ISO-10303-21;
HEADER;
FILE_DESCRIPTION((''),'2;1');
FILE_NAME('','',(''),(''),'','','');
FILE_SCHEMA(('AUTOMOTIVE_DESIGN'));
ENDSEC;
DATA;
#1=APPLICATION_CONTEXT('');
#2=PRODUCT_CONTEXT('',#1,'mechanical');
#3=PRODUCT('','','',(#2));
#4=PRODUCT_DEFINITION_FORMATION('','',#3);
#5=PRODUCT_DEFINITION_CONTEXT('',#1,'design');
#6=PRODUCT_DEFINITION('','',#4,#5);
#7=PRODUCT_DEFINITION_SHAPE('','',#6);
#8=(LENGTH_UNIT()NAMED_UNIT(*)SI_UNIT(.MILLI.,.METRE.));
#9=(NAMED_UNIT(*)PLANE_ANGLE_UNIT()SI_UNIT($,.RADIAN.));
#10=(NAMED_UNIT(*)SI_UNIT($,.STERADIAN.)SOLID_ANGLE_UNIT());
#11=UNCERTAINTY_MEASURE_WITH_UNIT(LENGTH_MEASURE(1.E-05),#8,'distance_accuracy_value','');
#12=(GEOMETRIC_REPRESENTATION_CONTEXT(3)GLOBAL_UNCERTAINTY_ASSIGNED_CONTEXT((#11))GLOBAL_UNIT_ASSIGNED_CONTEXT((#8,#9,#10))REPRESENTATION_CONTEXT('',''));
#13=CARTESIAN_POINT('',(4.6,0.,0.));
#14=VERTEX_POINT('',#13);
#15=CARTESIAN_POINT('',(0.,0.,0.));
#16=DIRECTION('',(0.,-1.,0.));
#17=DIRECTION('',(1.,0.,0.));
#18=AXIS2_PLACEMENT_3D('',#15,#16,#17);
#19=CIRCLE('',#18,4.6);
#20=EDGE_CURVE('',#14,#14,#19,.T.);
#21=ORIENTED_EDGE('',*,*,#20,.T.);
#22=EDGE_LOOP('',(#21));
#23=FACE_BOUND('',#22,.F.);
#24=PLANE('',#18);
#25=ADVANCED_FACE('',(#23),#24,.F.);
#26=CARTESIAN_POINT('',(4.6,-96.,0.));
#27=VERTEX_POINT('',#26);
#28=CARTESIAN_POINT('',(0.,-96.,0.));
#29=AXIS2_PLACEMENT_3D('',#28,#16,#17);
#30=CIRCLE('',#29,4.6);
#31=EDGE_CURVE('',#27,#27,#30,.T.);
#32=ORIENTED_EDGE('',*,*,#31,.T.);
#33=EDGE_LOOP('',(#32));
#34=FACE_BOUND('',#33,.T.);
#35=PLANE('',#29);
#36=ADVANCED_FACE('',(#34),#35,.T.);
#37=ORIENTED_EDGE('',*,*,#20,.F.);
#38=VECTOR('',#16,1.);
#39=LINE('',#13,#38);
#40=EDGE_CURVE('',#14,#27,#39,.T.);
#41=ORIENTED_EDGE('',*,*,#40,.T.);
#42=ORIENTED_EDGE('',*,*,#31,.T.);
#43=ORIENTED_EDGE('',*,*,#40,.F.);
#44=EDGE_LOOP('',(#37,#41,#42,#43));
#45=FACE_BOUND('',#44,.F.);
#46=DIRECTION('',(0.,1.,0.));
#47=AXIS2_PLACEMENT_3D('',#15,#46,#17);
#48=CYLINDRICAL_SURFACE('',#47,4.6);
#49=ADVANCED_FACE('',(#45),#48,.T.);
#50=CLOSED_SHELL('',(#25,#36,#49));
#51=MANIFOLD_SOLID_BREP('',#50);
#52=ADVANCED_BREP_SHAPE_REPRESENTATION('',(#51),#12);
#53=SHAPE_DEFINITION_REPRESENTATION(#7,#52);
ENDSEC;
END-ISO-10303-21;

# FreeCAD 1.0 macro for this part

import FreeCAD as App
import Part
import Sketcher

V = App.Vector
Q = App.Units.Quantity

doc = App.newDocument("Part")
body = doc.addObject("PartDesign::Body", "Body")

# Sketch on XZ plane
sketch1 = doc.addObject("Sketcher::SketchObject", "Sketch")
body.addObject(sketch1)
sketch1.AttachmentSupport = (doc.XZ_Plane, [""])
sketch1.MapMode = "FlatFace"
sketch1.addGeometry(Part.Circle(V(0, 0, 0), V(0, 0, 1), 4.6), False)
sketch1.addConstraint(Sketcher.Constraint("Coincident", 0, 3, -1, 1))
sketch1.addConstraint(Sketcher.Constraint("Diameter", 0, Q("9.2 mm")))
pad1 = doc.addObject("PartDesign::Pad", "Pad")
body.addObject(pad1)
pad1.Profile = sketch1
pad1.Length = 96

doc.recompute()
